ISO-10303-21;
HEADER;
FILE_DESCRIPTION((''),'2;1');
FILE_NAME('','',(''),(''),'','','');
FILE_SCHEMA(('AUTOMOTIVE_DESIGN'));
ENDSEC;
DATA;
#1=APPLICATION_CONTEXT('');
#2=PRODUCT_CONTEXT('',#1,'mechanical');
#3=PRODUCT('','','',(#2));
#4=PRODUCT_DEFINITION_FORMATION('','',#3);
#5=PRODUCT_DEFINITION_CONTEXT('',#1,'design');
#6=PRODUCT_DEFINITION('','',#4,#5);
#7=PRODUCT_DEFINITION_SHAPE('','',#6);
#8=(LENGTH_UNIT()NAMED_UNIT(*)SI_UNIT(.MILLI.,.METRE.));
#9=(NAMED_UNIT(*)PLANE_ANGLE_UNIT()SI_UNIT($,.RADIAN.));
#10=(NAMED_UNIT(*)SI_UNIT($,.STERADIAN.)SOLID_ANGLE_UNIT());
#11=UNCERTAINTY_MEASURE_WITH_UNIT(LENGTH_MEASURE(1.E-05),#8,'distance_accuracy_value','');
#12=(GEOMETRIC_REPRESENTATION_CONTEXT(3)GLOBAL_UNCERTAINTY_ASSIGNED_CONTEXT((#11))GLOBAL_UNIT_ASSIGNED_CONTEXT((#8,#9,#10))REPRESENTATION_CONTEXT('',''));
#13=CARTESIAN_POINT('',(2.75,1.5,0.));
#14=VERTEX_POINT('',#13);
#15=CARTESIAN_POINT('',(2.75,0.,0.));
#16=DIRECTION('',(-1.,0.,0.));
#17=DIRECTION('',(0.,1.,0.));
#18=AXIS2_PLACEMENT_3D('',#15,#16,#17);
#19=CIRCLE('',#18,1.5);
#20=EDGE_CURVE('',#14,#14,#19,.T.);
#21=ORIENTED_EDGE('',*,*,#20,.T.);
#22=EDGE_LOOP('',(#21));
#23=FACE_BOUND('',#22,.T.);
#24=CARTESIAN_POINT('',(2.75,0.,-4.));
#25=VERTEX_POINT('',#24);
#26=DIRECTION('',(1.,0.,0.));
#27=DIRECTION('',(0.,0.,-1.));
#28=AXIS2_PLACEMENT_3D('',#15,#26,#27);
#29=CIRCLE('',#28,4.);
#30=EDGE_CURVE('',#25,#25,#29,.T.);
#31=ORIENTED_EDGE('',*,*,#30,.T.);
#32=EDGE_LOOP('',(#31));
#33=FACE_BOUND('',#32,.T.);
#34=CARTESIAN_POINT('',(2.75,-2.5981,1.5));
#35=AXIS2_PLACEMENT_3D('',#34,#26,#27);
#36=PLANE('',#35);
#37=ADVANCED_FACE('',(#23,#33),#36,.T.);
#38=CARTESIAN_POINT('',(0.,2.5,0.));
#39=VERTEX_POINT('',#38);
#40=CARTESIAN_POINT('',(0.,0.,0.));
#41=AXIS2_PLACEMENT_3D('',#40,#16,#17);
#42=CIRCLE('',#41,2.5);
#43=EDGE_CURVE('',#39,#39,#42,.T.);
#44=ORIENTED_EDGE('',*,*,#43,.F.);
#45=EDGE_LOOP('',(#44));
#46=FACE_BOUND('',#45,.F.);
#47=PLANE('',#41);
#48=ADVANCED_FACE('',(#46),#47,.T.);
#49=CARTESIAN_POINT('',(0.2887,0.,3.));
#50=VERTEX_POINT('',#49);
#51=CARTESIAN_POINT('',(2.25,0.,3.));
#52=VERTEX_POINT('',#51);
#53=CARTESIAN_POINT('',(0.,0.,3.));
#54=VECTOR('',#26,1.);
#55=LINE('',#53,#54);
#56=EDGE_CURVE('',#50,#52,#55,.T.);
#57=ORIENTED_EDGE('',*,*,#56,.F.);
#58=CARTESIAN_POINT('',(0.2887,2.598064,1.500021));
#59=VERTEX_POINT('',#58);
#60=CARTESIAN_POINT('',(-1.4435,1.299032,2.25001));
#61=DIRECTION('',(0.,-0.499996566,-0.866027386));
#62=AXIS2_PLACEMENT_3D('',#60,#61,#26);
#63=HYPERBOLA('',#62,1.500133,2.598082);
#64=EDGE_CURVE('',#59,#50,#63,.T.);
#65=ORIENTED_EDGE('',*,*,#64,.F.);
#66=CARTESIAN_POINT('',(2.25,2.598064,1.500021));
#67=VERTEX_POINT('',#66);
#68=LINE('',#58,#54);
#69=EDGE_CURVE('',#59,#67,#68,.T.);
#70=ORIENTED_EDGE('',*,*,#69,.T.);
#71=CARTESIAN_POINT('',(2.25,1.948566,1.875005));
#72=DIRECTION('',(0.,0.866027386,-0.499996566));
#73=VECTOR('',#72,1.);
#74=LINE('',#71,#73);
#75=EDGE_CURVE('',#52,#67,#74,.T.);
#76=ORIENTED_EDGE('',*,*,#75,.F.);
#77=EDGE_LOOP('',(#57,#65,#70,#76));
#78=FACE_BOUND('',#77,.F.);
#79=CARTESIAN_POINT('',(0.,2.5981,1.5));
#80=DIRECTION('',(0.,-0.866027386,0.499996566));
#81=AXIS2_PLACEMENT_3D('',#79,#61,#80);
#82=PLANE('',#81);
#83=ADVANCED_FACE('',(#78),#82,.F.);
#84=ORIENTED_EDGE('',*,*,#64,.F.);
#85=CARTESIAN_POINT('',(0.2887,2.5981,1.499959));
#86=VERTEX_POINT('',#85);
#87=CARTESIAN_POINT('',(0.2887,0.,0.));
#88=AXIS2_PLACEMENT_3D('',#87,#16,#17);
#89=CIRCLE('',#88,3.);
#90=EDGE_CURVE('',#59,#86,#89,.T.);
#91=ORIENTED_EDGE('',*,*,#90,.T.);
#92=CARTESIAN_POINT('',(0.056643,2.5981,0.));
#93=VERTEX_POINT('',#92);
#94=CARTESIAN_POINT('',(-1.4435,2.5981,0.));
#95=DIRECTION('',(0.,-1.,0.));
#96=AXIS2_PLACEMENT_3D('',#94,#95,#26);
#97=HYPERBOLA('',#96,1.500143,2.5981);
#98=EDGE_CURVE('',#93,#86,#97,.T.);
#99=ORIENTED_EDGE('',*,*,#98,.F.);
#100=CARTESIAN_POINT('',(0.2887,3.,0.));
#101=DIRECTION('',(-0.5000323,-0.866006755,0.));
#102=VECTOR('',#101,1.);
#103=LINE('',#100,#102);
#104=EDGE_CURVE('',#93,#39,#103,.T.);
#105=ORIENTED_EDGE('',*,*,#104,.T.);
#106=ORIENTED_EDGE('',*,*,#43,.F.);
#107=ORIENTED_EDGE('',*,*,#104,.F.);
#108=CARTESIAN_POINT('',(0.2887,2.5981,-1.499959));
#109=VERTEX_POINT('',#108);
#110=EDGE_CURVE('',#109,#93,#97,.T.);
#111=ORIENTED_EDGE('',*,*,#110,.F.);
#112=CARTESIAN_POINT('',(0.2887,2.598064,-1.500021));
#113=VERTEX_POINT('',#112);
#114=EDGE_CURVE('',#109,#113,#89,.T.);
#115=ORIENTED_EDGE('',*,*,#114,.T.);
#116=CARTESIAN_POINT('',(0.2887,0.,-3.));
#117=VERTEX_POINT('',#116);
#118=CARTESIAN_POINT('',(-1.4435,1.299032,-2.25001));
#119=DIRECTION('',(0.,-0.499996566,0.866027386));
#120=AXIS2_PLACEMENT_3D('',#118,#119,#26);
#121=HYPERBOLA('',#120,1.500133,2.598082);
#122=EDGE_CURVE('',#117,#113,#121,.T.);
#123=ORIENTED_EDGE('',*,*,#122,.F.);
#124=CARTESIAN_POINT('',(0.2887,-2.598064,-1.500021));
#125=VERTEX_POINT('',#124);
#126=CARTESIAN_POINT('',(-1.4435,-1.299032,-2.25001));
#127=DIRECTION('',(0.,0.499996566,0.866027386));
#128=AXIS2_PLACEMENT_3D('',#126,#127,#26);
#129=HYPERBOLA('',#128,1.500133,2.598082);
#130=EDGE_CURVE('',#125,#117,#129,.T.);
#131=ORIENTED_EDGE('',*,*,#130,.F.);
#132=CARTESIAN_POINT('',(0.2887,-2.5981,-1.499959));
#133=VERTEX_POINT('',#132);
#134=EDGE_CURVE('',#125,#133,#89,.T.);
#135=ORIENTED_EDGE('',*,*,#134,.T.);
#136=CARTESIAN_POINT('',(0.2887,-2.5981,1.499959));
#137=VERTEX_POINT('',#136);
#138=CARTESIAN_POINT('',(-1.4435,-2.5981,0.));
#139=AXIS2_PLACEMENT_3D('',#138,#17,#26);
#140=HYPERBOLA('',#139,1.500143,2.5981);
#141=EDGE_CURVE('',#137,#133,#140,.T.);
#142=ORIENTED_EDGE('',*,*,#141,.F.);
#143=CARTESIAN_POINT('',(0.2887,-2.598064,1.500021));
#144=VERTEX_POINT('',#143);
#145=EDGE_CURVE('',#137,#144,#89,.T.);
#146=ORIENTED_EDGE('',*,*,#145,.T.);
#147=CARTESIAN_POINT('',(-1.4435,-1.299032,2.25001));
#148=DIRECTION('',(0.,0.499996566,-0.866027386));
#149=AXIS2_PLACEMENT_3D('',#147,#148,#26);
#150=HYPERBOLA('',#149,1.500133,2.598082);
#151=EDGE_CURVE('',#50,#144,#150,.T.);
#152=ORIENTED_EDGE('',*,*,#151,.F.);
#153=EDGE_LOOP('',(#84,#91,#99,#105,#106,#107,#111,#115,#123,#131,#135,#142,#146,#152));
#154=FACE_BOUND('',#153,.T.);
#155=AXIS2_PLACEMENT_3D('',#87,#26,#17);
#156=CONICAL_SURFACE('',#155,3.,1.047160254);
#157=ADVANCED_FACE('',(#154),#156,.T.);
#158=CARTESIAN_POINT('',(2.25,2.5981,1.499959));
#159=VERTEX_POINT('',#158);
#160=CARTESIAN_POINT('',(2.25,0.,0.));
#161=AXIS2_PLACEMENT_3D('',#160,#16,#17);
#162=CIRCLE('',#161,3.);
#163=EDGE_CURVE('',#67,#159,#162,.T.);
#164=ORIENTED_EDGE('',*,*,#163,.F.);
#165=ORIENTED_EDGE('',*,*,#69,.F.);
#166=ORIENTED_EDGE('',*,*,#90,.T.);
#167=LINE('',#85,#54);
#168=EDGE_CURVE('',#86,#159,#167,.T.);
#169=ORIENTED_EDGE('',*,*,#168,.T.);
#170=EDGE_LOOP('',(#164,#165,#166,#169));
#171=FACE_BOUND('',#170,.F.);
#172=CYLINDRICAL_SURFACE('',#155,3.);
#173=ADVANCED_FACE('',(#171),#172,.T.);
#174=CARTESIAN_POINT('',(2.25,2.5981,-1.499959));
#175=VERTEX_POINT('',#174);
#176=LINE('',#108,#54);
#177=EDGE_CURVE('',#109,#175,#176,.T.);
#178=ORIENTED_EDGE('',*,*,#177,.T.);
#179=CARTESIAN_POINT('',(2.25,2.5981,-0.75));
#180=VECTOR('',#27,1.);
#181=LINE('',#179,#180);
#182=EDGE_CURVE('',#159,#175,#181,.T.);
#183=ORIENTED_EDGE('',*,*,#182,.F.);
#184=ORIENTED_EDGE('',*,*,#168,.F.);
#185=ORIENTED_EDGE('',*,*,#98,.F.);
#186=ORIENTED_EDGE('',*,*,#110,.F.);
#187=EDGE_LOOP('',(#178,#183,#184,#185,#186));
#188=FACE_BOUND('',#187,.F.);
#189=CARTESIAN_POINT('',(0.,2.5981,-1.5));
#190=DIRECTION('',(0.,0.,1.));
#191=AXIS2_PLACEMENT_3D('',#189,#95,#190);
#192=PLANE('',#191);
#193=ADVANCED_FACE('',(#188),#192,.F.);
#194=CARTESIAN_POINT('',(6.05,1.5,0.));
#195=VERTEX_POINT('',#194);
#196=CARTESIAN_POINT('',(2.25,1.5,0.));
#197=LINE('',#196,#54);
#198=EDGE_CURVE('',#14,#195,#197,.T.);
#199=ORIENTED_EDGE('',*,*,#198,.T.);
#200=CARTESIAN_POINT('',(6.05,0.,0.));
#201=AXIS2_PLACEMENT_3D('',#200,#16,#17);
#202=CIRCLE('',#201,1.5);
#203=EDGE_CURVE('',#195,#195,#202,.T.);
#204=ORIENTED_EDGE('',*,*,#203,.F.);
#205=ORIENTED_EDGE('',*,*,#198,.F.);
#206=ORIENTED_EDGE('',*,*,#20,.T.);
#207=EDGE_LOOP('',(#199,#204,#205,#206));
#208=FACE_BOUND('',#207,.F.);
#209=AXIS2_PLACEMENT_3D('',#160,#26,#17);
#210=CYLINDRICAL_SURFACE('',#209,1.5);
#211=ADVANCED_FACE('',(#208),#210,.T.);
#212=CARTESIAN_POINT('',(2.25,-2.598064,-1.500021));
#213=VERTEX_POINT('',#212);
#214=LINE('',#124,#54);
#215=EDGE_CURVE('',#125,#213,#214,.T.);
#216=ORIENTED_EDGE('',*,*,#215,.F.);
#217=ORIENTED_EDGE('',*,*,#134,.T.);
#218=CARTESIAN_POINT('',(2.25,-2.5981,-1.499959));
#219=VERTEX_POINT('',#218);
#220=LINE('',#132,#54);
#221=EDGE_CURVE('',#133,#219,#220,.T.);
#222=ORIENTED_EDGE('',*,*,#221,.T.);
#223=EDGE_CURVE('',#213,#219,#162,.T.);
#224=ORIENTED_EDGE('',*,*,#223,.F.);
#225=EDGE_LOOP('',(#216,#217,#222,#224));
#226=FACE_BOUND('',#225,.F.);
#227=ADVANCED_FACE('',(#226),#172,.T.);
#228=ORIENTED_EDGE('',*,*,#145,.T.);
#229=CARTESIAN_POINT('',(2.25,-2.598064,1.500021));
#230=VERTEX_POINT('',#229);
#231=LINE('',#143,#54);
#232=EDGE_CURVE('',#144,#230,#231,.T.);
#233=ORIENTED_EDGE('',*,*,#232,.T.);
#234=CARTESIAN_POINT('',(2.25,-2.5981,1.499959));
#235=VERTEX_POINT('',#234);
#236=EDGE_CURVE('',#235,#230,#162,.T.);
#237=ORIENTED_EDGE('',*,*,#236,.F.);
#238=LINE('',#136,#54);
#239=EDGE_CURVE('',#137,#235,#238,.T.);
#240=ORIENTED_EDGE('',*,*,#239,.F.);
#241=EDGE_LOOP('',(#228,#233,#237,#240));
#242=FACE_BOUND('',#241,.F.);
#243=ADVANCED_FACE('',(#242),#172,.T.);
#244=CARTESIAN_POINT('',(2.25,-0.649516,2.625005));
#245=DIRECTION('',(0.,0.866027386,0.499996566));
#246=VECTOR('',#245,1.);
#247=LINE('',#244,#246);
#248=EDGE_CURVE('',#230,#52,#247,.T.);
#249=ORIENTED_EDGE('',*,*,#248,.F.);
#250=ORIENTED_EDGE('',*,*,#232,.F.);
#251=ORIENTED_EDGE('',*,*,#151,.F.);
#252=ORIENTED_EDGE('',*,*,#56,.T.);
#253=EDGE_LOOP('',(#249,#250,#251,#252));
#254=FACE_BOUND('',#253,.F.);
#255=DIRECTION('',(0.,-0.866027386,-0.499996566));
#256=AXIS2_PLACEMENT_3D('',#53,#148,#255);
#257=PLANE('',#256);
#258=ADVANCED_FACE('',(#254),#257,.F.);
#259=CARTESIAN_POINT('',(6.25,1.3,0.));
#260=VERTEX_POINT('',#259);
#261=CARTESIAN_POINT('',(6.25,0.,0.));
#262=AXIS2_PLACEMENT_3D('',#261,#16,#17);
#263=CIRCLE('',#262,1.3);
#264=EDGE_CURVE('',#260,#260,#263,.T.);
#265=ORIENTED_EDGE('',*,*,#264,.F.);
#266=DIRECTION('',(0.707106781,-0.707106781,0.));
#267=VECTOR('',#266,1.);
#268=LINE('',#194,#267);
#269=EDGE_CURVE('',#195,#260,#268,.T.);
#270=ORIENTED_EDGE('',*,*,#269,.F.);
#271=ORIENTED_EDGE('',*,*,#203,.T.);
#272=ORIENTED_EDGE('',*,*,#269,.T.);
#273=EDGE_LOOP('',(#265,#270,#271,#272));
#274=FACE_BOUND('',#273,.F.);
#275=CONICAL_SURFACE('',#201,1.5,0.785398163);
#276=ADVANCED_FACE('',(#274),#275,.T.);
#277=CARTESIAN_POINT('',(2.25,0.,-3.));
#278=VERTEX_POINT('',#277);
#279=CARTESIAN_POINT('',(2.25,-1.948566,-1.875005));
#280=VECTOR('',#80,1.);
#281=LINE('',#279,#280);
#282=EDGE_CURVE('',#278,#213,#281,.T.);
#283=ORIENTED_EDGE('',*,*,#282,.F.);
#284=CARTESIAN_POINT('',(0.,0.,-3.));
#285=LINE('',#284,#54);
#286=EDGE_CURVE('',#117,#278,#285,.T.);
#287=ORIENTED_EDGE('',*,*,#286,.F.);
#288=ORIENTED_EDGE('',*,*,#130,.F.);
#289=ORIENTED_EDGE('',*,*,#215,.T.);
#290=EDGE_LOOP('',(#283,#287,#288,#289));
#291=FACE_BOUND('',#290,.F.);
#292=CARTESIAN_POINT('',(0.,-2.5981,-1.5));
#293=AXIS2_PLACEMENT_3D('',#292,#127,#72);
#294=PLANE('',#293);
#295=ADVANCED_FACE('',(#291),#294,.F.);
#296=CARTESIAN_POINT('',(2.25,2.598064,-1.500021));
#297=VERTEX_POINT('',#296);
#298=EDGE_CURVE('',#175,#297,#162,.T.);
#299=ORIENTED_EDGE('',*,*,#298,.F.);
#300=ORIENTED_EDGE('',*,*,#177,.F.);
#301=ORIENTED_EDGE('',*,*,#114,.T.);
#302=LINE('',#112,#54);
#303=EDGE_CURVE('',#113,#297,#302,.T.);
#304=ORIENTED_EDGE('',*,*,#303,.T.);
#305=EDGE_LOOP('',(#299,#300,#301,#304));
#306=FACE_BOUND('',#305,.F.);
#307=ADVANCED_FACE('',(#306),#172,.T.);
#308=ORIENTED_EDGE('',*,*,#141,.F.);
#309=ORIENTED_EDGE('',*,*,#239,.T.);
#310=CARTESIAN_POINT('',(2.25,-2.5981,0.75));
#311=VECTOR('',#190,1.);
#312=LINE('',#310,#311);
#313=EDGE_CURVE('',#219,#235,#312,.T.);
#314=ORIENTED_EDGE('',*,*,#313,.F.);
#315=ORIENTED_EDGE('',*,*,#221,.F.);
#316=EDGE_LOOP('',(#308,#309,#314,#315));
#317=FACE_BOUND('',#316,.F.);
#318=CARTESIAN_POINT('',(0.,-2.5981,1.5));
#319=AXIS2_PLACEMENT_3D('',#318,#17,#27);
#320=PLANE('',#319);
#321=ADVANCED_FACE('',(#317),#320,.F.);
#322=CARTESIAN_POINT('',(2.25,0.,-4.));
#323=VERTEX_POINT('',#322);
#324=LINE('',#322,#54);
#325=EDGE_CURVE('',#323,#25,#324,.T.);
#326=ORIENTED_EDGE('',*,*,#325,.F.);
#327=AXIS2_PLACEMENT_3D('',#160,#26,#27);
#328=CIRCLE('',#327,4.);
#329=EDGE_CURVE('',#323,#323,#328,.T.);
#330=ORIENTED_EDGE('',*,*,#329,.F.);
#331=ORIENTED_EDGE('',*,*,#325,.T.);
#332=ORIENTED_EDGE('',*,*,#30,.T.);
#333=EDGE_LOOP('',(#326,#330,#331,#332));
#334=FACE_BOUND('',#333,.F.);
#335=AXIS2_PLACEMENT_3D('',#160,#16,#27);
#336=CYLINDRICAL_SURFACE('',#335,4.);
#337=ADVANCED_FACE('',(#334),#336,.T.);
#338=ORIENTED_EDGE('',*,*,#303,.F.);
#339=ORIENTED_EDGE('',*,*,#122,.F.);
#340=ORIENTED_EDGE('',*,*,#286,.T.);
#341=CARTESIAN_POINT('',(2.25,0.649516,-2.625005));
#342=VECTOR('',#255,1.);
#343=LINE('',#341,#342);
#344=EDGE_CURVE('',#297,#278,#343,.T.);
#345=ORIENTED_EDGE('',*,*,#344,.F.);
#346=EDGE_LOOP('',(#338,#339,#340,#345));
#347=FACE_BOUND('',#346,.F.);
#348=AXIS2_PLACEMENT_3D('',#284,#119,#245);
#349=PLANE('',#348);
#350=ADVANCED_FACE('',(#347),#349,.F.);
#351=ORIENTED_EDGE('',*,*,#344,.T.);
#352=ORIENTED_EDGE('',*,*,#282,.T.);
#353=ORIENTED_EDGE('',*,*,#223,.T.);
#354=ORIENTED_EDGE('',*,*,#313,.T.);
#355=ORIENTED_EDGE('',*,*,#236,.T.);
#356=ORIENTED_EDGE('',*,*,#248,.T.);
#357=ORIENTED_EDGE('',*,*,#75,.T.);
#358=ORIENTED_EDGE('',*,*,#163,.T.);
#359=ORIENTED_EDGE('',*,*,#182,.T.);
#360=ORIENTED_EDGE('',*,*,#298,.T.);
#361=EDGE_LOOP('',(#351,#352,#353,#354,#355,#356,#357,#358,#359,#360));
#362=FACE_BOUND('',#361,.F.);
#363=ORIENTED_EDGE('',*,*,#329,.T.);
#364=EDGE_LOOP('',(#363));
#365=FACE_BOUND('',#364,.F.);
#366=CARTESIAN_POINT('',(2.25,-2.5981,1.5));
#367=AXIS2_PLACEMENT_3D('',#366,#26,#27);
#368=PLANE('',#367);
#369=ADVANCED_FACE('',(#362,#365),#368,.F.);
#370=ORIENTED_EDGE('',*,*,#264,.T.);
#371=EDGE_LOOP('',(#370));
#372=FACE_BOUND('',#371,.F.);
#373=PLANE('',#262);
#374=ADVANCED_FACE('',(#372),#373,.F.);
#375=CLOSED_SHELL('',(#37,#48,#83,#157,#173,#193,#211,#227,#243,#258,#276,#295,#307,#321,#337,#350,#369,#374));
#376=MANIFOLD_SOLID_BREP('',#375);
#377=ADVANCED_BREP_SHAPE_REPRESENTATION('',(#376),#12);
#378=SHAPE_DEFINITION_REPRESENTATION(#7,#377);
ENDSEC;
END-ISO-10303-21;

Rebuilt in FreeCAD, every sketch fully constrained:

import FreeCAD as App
import Part
import Sketcher


def edges_at(feature, points):
    """Names of the edges that pass closest to the given points."""
    edges = feature.Shape.Edges
    near = lambda p: min(range(len(edges)), key=lambda i: edges[i].distToShape(Part.Vertex(*p))[0])
    return sorted({f"Edge{near(p) + 1}" for p in points})


def add_polygon(sketch, points):
    """Adds a closed chain of lines whose ends are joined by coincident constraints."""
    first, n = sketch.GeometryCount, len(points)
    for a, b in zip(points, points[1:] + points[:1]):
        sketch.addGeometry(Part.LineSegment(App.Vector(*a, 0), App.Vector(*b, 0)), False)
    for i in range(n):
        sketch.addConstraint(Sketcher.Constraint("Coincident", first + i, 2, first + (i + 1) % n, 1))

doc = App.newDocument("Part")
body = doc.addObject("PartDesign::Body", "Body")

# Sketch on XY plane
sketch1 = body.newObject("Sketcher::SketchObject", "Sketch")
sketch1.AttachmentSupport = (doc.getObject("XY_Plane"), [""])
sketch1.MapMode = "FlatFace"
add_polygon(sketch1, [(0, 2.5), (0, 0), (6.2, 0), (6.2, 1.5), (2.2, 1.5), (2.2, 3), (0.3, 3)])  # lines 0-6
sketch1.addConstraint([
    Sketcher.Constraint("Vertical", 0),
    Sketcher.Constraint("Horizontal", 1),
    Sketcher.Constraint("Vertical", 2),
    Sketcher.Constraint("Horizontal", 3),
    Sketcher.Constraint("Vertical", 4),
    Sketcher.Constraint("Horizontal", 5),
    Sketcher.Constraint("Coincident", 0, 2, -1, 1),
    Sketcher.Constraint("Equal", 2, 4),
    Sketcher.Constraint("DistanceX", 3, 2, 3, 1, 4.0),
    Sketcher.Constraint("DistanceY", 2, 1, 2, 2, 1.5),
    Sketcher.Constraint("DistanceY", 6, 2, 5, 2, 0.5),
    Sketcher.Constraint("DistanceX", -1, 1, 3, 2, 2.25),
    Sketcher.Constraint("DistanceX", 5, 2, 5, 1, 1.9613),
])
revolution = body.newObject("PartDesign::Revolution", "Revolution")
revolution.Profile = sketch1
revolution.ReferenceAxis = (sketch1, ["H_Axis"])
revolution.Angle = 360

# Sketch on YZ plane
sketch2 = body.newObject("Sketcher::SketchObject", "Sketch001")
sketch2.AttachmentSupport = (doc.getObject("YZ_Plane"), [""])
sketch2.MapMode = "FlatFace"
sketch2.addGeometry(Part.Circle(App.Vector(0, 0, 0), App.Vector(0, 0, 1), 5.3), False)  # 0
add_polygon(sketch2, [(2.6, -1.5), (2.6, 1.5), (0, 3), (-2.6, 1.5), (-2.6, -1.5), (0, -3)])  # lines 1-6
sketch2.addConstraint([
    Sketcher.Constraint("Vertical", 1),
    Sketcher.Constraint("Vertical", 4),
    Sketcher.Constraint("Coincident", 0, 3, -1, 1),
    Sketcher.Constraint("Symmetric", 1, 2, 4, 2, -1, 1),
    Sketcher.Constraint("Symmetric", 2, 2, 5, 2, -1, 1),
    Sketcher.Constraint("PointOnObject", 2, 2, -2),
    Sketcher.Constraint("Parallel", 3, 6),
    Sketcher.Constraint("Horizontal", 1, 2, 3, 2),
    Sketcher.Constraint("DistanceY", 1, 1, 1, 2, 3.0),
    Sketcher.Constraint("Distance", 2, 3.0),
    Sketcher.Constraint("DistanceY", -1, 1, 2, 2, 3.0),
    Sketcher.Constraint("Diameter", 0, 10.5414),
])
pocket1 = body.newObject("PartDesign::Pocket", "Pocket")
pocket1.Profile = sketch2
pocket1.Length = 5
pocket1.Reversed = True
doc.recompute()

chamfer = body.newObject("PartDesign::Chamfer", "Chamfer")
chamfer.Base = (pocket1, edges_at(pocket1, [(6.25, -1.5, 0)]))
chamfer.Size = 0.2

# Sketch on YZ plane
sketch3 = body.newObject("Sketcher::SketchObject", "Sketch002")
sketch3.AttachmentSupport = (doc.getObject("YZ_Plane"), [""])
sketch3.MapMode = "FlatFace"
sketch3.AttachmentOffset = App.Placement(App.Vector(0, 0, 2.25), App.Rotation())
sketch3.addGeometry([
    Part.Circle(App.Vector(0, 0, 0), App.Vector(0, 0, 1), 4),
    Part.Circle(App.Vector(0, 0, 0), App.Vector(0, 0, 1), 1.5),
], False)
sketch3.addConstraint([
    Sketcher.Constraint("Coincident", 0, 3, -1, 1),
    Sketcher.Constraint("Coincident", 1, 3, -1, 1),
    Sketcher.Constraint("Diameter", 0, 8.0),
    Sketcher.Constraint("Diameter", 1, 3.0),
])
pad1 = body.newObject("PartDesign::Pad", "Pad")
pad1.Profile = sketch3
pad1.Length = 0.5

doc.recompute()
